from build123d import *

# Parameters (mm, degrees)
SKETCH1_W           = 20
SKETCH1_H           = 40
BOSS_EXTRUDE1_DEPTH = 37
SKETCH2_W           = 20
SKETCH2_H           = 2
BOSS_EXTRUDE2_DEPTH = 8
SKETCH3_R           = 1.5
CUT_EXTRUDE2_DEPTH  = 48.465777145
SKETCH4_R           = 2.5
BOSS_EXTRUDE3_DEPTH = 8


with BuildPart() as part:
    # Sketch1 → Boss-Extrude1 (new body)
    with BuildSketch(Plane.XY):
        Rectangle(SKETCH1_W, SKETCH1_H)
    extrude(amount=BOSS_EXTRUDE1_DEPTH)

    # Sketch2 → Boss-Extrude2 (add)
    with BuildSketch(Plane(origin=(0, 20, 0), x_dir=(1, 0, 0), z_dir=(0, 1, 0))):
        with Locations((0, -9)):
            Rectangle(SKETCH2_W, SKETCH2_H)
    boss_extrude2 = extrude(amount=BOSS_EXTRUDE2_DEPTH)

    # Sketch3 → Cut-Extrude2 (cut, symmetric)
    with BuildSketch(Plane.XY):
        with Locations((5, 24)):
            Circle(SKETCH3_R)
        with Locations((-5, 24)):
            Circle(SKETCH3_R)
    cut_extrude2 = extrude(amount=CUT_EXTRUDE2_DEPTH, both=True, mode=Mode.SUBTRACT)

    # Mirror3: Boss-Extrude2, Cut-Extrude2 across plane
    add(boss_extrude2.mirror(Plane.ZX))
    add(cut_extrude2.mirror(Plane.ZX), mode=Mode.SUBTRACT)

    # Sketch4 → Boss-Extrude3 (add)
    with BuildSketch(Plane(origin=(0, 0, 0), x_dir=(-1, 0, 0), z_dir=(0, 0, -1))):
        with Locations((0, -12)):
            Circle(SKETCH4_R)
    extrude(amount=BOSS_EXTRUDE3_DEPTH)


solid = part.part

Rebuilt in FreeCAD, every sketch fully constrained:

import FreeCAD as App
import Part
import Sketcher

V = App.Vector


def add_polygon(sketch, points):
    """Adds a closed chain of lines whose ends are joined by coincident constraints."""
    first, n = sketch.GeometryCount, len(points)
    for a, b in zip(points, points[1:] + points[:1]):
        sketch.addGeometry(Part.LineSegment(App.Vector(*a, 0), App.Vector(*b, 0)), False)
    for i in range(n):
        sketch.addConstraint(Sketcher.Constraint("Coincident", first + i, 2, first + (i + 1) % n, 1))

doc = App.newDocument("Part")
body = doc.addObject("PartDesign::Body", "Body")

sketch1 = body.newObject("Sketcher::SketchObject", "Sketch")
sketch1.AttachmentSupport = (doc.getObject("XY_Plane"), [""])
sketch1.MapMode = "FlatFace"
add_polygon(sketch1, [(-10, 20), (-10, -20), (10, -20), (10, 20)])
sketch1.addConstraint([
    Sketcher.Constraint("Vertical", 0),
    Sketcher.Constraint("Horizontal", 1),
    Sketcher.Constraint("Vertical", 2),
    Sketcher.Constraint("Horizontal", 3),
    Sketcher.Constraint("Symmetric", 0, 2, 2, 2, -1, 1),
    Sketcher.Constraint("DistanceX", 1, 1, 1, 2, 20.0),
    Sketcher.Constraint("DistanceY", 0, 2, 0, 1, 40.0),
])
pad1 = body.newObject("PartDesign::Pad", "Pad")
pad1.Profile = sketch1
pad1.Length = 37

sketch2 = body.newObject("Sketcher::SketchObject", "Sketch001")
sketch2.AttachmentSupport = (doc.getObject("XZ_Plane"), [""])
sketch2.MapMode = "FlatFace"
sketch2.AttachmentOffset = App.Placement(V(0, 0, -20), App.Rotation())
add_polygon(sketch2, [(-10, 8), (-10, 10), (10, 10), (10, 8)])
sketch2.addConstraint([
    Sketcher.Constraint("Vertical", 0),
    Sketcher.Constraint("Horizontal", 1),
    Sketcher.Constraint("Vertical", 2),
    Sketcher.Constraint("Horizontal", 3),
    Sketcher.Constraint("DistanceX", 1, 1, 1, 2, 20.0),
    Sketcher.Constraint("DistanceY", 0, 1, 0, 2, 2.0),
    Sketcher.Constraint("DistanceX", 0, 2, -1, 1, 10.0),
    Sketcher.Constraint("DistanceY", -1, 1, 0, 2, 10.0),
])
pad2 = body.newObject("PartDesign::Pad", "Pad001")
pad2.Profile = sketch2
pad2.Length = 8
pad2.Reversed = True

sketch3 = body.newObject("Sketcher::SketchObject", "Sketch002")
sketch3.AttachmentSupport = (doc.getObject("XY_Plane"), [""])
sketch3.MapMode = "FlatFace"
sketch3.addGeometry([
    Part.Circle(V(5, 24, 0), V(0, 0, 1), 1.5),
    Part.Circle(V(-5, 24, 0), V(0, 0, 1), 1.5),
], False)
sketch3.addConstraint([
    Sketcher.Constraint("Equal", 0, 1),
    Sketcher.Constraint("Symmetric", 0, 3, 1, 3, -2),
    Sketcher.Constraint("Diameter", 0, 3.0),
    Sketcher.Constraint("DistanceX", -1, 1, 0, 3, 5.0),
    Sketcher.Constraint("DistanceY", -1, 1, 0, 3, 24.0),
])
pocket1 = body.newObject("PartDesign::Pocket", "Pocket")
pocket1.Profile = sketch3
pocket1.Length = 96.931554
pocket1.Midplane = True
doc.recompute()

mirrored = body.newObject("PartDesign::Mirrored", "Mirrored")
mirrored.Originals = [pad2, pocket1]
mirrored.MirrorPlane = (doc.getObject("XZ_Plane"), [""])
body.Tip = mirrored

sketch4 = body.newObject("Sketcher::SketchObject", "Sketch003")
sketch4.AttachmentSupport = (doc.getObject("XY_Plane"), [""])
sketch4.MapMode = "FlatFace"
sketch4.addGeometry(Part.Circle(V(0, -12, 0), V(0, 0, 1), 2.5), False)
sketch4.addConstraint([
    Sketcher.Constraint("PointOnObject", 0, 3, -2),
    Sketcher.Constraint("Diameter", 0, 5.0),
    Sketcher.Constraint("DistanceY", 0, 3, -1, 1, 12.0),
])
pad3 = body.newObject("PartDesign::Pad", "Pad002")
pad3.Profile = sketch4
pad3.Length = 8
pad3.Reversed = True

doc.recompute()
